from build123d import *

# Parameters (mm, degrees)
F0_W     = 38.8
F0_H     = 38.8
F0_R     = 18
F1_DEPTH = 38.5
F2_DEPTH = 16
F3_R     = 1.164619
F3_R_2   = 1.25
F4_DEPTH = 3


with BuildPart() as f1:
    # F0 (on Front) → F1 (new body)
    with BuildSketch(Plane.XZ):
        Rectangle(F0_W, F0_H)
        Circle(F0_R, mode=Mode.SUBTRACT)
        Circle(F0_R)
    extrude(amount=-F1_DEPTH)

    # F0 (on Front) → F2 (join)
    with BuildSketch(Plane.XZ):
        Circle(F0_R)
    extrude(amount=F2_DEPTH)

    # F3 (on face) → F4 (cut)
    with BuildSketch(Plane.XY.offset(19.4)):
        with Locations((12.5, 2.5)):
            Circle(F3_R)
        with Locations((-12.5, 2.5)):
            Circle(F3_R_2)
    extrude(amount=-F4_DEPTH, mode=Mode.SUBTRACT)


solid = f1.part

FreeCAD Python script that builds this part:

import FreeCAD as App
import Part
import Sketcher
from FreeCAD import Vector
Q = App.Units.Quantity


def add_polygon(sketch, points):
    """Adds a closed chain of lines whose ends are joined by coincident constraints."""
    first, n = sketch.GeometryCount, len(points)
    for a, b in zip(points, points[1:] + points[:1]):
        sketch.addGeometry(Part.LineSegment(App.Vector(*a, 0), App.Vector(*b, 0)), False)
    for i in range(n):
        sketch.addConstraint(Sketcher.Constraint("Coincident", first + i, 2, first + (i + 1) % n, 1))

doc = App.newDocument("Part")
body = doc.addObject("PartDesign::Body", "Body")

# Sketch on XZ plane
sketch1 = body.newObject("Sketcher::SketchObject", "Sketch")
sketch1.AttachmentSupport = (doc.getObject("XZ_Plane"), [""])
sketch1.MapMode = "FlatFace"
add_polygon(sketch1, [(-19, 19), (-19, -19), (19, -19), (19, 19)])  # lines 0-3
sketch1.addConstraint(Sketcher.Constraint("Vertical", 0))
sketch1.addConstraint(Sketcher.Constraint("Horizontal", 1))
sketch1.addConstraint(Sketcher.Constraint("Vertical", 2))
sketch1.addConstraint(Sketcher.Constraint("Horizontal", 3))
sketch1.addConstraint(Sketcher.Constraint("Symmetric", 0, 2, 2, 2, -1, 1))
sketch1.addConstraint(Sketcher.Constraint("Equal", 3, 0))
sketch1.addConstraint(Sketcher.Constraint("DistanceX", 1, 1, 1, 2, Q("38.8 mm")))
pad1 = body.newObject("PartDesign::Pad", "Pad")
pad1.Profile = sketch1
pad1.Length = 38.5
pad1.Reversed = True

# Sketch on XZ plane
sketch2 = body.newObject("Sketcher::SketchObject", "Sketch001")
sketch2.AttachmentSupport = (doc.getObject("XZ_Plane"), [""])
sketch2.MapMode = "FlatFace"
sketch2.addGeometry(Part.Circle(Vector(0, 0, 0), Vector(0, 0, 1), 18), False)
sketch2.addConstraint(Sketcher.Constraint("Coincident", 0, 3, -1, 1))
sketch2.addConstraint(Sketcher.Constraint("Diameter", 0, Q("36 mm")))
pad2 = body.newObject("PartDesign::Pad", "Pad001")
pad2.Profile = sketch2
pad2.Length = 16

# Sketch on XY plane
sketch3 = body.newObject("Sketcher::SketchObject", "Sketch002")
sketch3.AttachmentSupport = (doc.getObject("XY_Plane"), [""])
sketch3.MapMode = "FlatFace"
sketch3.AttachmentOffset = App.Placement(Vector(0, 0, 19.4), App.Rotation())
sketch3.addGeometry(Part.Circle(Vector(12.5, 2.5, 0), Vector(0, 0, 1), 1.2), False)
sketch3.addGeometry(Part.Circle(Vector(-12.5, 2.5, 0), Vector(0, 0, 1), 1.2), False)
sketch3.addConstraint(Sketcher.Constraint("Symmetric", 0, 3, 1, 3, -2))
sketch3.addConstraint(Sketcher.Constraint("Diameter", 1, Q("2.5 mm")))
sketch3.addConstraint(Sketcher.Constraint("DistanceX", 1, 3, 0, 3, Q("25 mm")))
sketch3.addConstraint(Sketcher.Constraint("DistanceY", -1, 1, 0, 3, Q("2.5 mm")))
sketch3.addConstraint(Sketcher.Constraint("Diameter", 0, Q("2.329238 mm")))
pocket1 = body.newObject("PartDesign::Pocket", "Pocket")
pocket1.Profile = sketch3
pocket1.Length = 3

doc.recompute()
